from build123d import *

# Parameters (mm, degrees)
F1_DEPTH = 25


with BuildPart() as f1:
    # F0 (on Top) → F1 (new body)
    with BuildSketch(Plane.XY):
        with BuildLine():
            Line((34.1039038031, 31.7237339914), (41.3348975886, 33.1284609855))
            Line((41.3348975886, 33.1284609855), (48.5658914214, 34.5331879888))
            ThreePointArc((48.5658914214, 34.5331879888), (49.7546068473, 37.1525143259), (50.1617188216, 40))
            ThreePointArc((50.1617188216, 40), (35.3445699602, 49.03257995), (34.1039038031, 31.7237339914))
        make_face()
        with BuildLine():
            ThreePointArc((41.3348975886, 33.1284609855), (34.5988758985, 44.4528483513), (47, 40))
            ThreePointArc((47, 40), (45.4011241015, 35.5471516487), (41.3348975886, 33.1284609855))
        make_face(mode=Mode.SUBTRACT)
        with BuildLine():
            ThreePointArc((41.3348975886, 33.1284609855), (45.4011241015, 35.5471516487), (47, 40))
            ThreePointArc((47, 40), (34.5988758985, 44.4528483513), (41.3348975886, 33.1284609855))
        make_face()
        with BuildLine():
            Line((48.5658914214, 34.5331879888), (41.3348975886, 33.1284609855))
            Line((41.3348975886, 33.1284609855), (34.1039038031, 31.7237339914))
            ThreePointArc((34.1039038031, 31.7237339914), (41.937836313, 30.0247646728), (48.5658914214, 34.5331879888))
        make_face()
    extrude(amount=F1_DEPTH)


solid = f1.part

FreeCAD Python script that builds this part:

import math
import FreeCAD as App
import Part
import Sketcher

doc = App.newDocument("Part")
body = doc.addObject("PartDesign::Body", "Body")

sketch1 = body.newObject("Sketcher::SketchObject", "Sketch")
sketch1.AttachmentSupport = (doc.getObject("XY_Plane"), [""])
sketch1.MapMode = "FlatFace"
sketch1.addGeometry([
    Part.ArcOfCircle(Part.Circle(App.Vector(40, 40, 0), App.Vector(0, 0, 1), 10.161719), math.radians(-32.546305), math.radians(0)),
    Part.ArcOfCircle(Part.Circle(App.Vector(40, 40, 0), App.Vector(0, 0, 1), 10.161719), math.radians(0), math.radians(234.533541)),
    Part.ArcOfCircle(Part.Circle(App.Vector(40, 40, 0), App.Vector(0, 0, 1), 10.161719), math.radians(-125.466459), math.radians(-32.546305)),
], False)
sketch1.addConstraint([
    Sketcher.Constraint("Tangent", 0, 2, 1, 1),
    Sketcher.Constraint("Tangent", 1, 2, 2, 1),
    Sketcher.Constraint("Tangent", 2, 2, 0, 1),
    Sketcher.Constraint("Horizontal", 2, 3, 0, 2),
    Sketcher.Constraint("DistanceX", -1, 1, 0, 3, 40.0),
    Sketcher.Constraint("DistanceY", -1, 1, 0, 3, 40.0),
    Sketcher.Constraint("Radius", 0, 10.161719),
    Sketcher.Constraint("DistanceX", -1, 1, 2, 2, 48.565891),
    Sketcher.Constraint("DistanceX", -1, 1, 1, 2, 34.103904),
])
pad1 = body.newObject("PartDesign::Pad", "Pad")
pad1.Profile = sketch1
pad1.Length = 25

doc.recompute()
